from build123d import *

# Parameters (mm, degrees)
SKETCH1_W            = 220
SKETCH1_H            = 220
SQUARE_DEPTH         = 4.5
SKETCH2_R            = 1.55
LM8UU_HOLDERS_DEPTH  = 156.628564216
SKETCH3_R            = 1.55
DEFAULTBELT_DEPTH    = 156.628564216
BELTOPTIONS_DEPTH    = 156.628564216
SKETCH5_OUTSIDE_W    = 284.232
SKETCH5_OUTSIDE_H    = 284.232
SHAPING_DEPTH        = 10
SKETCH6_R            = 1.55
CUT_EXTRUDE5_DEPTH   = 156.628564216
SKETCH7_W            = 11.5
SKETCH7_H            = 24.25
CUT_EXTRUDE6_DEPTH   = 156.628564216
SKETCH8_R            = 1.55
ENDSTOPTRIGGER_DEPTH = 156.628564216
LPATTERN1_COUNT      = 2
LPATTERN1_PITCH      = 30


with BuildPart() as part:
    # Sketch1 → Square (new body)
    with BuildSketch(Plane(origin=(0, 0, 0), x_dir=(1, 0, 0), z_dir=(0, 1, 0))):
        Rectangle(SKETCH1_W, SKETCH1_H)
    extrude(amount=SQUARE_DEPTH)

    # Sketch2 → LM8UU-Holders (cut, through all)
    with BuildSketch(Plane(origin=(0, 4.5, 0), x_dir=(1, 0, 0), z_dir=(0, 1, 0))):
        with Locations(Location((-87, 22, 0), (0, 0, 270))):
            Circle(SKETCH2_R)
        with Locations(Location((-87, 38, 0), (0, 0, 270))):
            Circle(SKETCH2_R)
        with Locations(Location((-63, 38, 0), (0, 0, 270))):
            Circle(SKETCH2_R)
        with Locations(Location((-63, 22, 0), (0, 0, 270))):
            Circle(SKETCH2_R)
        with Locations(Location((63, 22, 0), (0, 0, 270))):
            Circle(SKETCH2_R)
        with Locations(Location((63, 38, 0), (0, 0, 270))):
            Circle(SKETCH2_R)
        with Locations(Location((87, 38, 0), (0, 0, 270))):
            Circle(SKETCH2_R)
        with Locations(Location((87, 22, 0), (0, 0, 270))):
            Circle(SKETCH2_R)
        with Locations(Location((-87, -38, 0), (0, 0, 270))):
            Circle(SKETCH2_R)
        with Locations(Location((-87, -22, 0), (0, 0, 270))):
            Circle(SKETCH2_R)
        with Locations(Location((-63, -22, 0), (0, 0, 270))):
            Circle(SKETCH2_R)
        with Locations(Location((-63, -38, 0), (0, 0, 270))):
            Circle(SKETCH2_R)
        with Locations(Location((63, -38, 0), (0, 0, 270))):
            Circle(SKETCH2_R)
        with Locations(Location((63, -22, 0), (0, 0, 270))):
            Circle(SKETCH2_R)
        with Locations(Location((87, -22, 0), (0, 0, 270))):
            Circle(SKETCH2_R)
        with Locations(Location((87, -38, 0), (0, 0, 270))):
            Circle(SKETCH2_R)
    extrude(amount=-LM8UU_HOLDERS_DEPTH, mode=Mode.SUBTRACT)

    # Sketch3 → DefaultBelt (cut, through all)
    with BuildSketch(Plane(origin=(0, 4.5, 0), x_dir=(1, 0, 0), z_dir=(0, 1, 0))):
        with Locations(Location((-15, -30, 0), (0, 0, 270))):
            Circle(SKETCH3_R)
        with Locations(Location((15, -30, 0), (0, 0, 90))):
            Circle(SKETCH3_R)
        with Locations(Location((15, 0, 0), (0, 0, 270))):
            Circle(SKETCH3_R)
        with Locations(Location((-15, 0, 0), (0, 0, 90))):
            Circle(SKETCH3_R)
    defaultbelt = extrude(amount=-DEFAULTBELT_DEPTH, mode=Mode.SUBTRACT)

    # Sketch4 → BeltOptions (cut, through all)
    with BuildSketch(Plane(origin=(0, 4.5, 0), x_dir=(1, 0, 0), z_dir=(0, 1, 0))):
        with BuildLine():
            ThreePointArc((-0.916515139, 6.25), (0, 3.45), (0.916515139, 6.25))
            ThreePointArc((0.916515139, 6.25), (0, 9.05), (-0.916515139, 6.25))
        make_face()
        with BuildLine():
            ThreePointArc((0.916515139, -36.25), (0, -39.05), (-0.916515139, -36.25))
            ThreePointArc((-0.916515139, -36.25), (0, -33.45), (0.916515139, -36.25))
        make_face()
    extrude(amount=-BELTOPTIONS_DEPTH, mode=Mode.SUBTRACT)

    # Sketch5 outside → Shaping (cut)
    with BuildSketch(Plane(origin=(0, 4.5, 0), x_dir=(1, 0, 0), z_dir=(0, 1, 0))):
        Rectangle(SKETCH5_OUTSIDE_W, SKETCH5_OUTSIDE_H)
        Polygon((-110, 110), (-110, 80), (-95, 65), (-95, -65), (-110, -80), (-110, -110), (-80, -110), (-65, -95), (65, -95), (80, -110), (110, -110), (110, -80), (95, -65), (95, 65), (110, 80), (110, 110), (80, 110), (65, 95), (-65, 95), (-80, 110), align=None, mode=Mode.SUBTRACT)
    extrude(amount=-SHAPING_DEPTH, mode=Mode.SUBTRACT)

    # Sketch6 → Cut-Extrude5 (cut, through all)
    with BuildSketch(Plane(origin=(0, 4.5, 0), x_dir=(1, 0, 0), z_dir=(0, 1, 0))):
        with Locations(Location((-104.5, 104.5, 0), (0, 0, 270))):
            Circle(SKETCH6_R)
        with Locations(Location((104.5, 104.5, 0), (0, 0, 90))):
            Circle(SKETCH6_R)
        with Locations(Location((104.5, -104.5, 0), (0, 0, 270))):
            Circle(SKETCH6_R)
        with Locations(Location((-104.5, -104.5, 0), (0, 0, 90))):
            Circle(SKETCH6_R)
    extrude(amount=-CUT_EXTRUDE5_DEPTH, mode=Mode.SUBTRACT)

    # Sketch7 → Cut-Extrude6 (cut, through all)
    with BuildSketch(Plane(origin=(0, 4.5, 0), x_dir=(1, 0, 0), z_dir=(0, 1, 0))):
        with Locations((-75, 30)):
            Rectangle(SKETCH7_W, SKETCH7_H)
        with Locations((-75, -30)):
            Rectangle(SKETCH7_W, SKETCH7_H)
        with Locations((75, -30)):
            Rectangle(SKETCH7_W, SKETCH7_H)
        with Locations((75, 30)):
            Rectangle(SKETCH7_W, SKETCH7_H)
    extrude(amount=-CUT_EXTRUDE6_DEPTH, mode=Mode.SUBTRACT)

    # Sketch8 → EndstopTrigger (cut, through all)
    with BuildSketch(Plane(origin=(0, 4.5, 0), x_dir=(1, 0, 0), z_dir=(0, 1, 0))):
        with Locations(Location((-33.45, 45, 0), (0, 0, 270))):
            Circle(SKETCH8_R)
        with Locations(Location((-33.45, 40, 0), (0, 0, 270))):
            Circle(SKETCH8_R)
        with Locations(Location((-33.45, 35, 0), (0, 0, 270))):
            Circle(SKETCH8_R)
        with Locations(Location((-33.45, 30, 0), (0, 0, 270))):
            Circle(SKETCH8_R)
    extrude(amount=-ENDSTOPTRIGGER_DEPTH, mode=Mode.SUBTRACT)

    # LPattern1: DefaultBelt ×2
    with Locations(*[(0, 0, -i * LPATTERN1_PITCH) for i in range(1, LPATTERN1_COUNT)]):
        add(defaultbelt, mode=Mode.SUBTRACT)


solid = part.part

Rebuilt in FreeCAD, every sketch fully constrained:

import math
import FreeCAD as App
import Part
import Sketcher


def add_polygon(sketch, points):
    """Adds a closed chain of lines whose ends are joined by coincident constraints."""
    first, n = sketch.GeometryCount, len(points)
    for a, b in zip(points, points[1:] + points[:1]):
        sketch.addGeometry(Part.LineSegment(App.Vector(*a, 0), App.Vector(*b, 0)), False)
    for i in range(n):
        sketch.addConstraint(Sketcher.Constraint("Coincident", first + i, 2, first + (i + 1) % n, 1))

doc = App.newDocument("Part")
body = doc.addObject("PartDesign::Body", "Body")

sketch1 = body.newObject("Sketcher::SketchObject", "Sketch")
sketch1.AttachmentSupport = (doc.getObject("XZ_Plane"), [""])
sketch1.MapMode = "FlatFace"
add_polygon(sketch1, [(-110, -110), (-110, 110), (110, 110), (110, -110)])
sketch1.addConstraint([
    Sketcher.Constraint("Vertical", 0),
    Sketcher.Constraint("Horizontal", 1),
    Sketcher.Constraint("Vertical", 2),
    Sketcher.Constraint("Horizontal", 3),
    Sketcher.Constraint("Symmetric", 0, 2, 2, 2, -1, 1),
    Sketcher.Constraint("Equal", 3, 0),
    Sketcher.Constraint("DistanceX", 1, 1, 1, 2, 220.0),
])
pad1 = body.newObject("PartDesign::Pad", "Pad")
pad1.Profile = sketch1
pad1.Length = 4.5
pad1.Reversed = True

sketch2 = body.newObject("Sketcher::SketchObject", "Sketch001")
sketch2.AttachmentSupport = (doc.getObject("XZ_Plane"), [""])
sketch2.MapMode = "FlatFace"
sketch2.AttachmentOffset = App.Placement(App.Vector(0, 0, -4.5), App.Rotation())
sketch2.addGeometry([
    Part.Circle(App.Vector(-87, -22, 0), App.Vector(0, 0, 1), 1.55),
    Part.Circle(App.Vector(-87, -38, 0), App.Vector(0, 0, 1), 1.55),
    Part.Circle(App.Vector(-63, -38, 0), App.Vector(0, 0, 1), 1.55),
    Part.Circle(App.Vector(-63, -22, 0), App.Vector(0, 0, 1), 1.55),
    Part.Circle(App.Vector(63, -22, 0), App.Vector(0, 0, 1), 1.55),
    Part.Circle(App.Vector(63, -38, 0), App.Vector(0, 0, 1), 1.55),
    Part.Circle(App.Vector(87, -38, 0), App.Vector(0, 0, 1), 1.55),
    Part.Circle(App.Vector(87, -22, 0), App.Vector(0, 0, 1), 1.55),
    Part.Circle(App.Vector(-87, 38, 0), App.Vector(0, 0, 1), 1.55),
    Part.Circle(App.Vector(-87, 22, 0), App.Vector(0, 0, 1), 1.55),
    Part.Circle(App.Vector(-63, 22, 0), App.Vector(0, 0, 1), 1.55),
    Part.Circle(App.Vector(-63, 38, 0), App.Vector(0, 0, 1), 1.55),
    Part.Circle(App.Vector(63, 38, 0), App.Vector(0, 0, 1), 1.55),
    Part.Circle(App.Vector(63, 22, 0), App.Vector(0, 0, 1), 1.55),
    Part.Circle(App.Vector(87, 22, 0), App.Vector(0, 0, 1), 1.55),
    Part.Circle(App.Vector(87, 38, 0), App.Vector(0, 0, 1), 1.55),
], False)
sketch2.addConstraint([
    Sketcher.Constraint("Equal", 0, 1),
    Sketcher.Constraint("Equal", 1, 2),
    Sketcher.Constraint("Equal", 2, 3),
    Sketcher.Constraint("Equal", 3, 4),
    Sketcher.Constraint("Equal", 4, 5),
    Sketcher.Constraint("Equal", 5, 6),
    Sketcher.Constraint("Equal", 6, 7),
    Sketcher.Constraint("Equal", 7, 8),
    Sketcher.Constraint("Equal", 8, 9),
    Sketcher.Constraint("Equal", 9, 10),
    Sketcher.Constraint("Equal", 10, 11),
    Sketcher.Constraint("Equal", 11, 12),
    Sketcher.Constraint("Equal", 12, 13),
    Sketcher.Constraint("Equal", 13, 14),
    Sketcher.Constraint("Equal", 14, 15),
    Sketcher.Constraint("Symmetric", 6, 3, 8, 3, -1, 1),
    Sketcher.Constraint("Symmetric", 7, 3, 9, 3, -1, 1),
    Sketcher.Constraint("Symmetric", 4, 3, 10, 3, -1, 1),
    Sketcher.Constraint("Symmetric", 5, 3, 11, 3, -1, 1),
    Sketcher.Constraint("Symmetric", 2, 3, 12, 3, -1, 1),
    Sketcher.Constraint("Symmetric", 3, 3, 13, 3, -1, 1),
    Sketcher.Constraint("Symmetric", 0, 3, 14, 3, -1, 1),
    Sketcher.Constraint("Symmetric", 1, 3, 15, 3, -1, 1),
    Sketcher.Constraint("Symmetric", 3, 3, 4, 3, -2),
    Sketcher.Constraint("Symmetric", 2, 3, 5, 3, -2),
    Sketcher.Constraint("Symmetric", 1, 3, 6, 3, -2),
    Sketcher.Constraint("Symmetric", 0, 3, 7, 3, -2),
    Sketcher.Constraint("Horizontal", 1, 3, 2, 3),
    Sketcher.Constraint("Horizontal", 0, 3, 3, 3),
    Sketcher.Constraint("Vertical", 0, 3, 1, 3),
    Sketcher.Constraint("Vertical", 2, 3, 3, 3),
    Sketcher.Constraint("Diameter", 0, 3.1),
    Sketcher.Constraint("DistanceX", 0, 3, -1, 1, 87.0),
    Sketcher.Constraint("DistanceY", 0, 3, -1, 1, 22.0),
    Sketcher.Constraint("DistanceY", 1, 3, -1, 1, 38.0),
    Sketcher.Constraint("DistanceX", 2, 3, -1, 1, 63.0),
])
pocket1 = body.newObject("PartDesign::Pocket", "Pocket")
pocket1.Profile = sketch2
pocket1.Type = "ThroughAll"
pocket1.Reversed = True

sketch3 = body.newObject("Sketcher::SketchObject", "Sketch002")
sketch3.AttachmentSupport = (doc.getObject("XZ_Plane"), [""])
sketch3.MapMode = "FlatFace"
sketch3.AttachmentOffset = App.Placement(App.Vector(0, 0, -4.5), App.Rotation())
sketch3.addGeometry([
    Part.Circle(App.Vector(-15, 30, 0), App.Vector(0, 0, 1), 1.55),
    Part.Circle(App.Vector(15, 30, 0), App.Vector(0, 0, 1), 1.55),
    Part.Circle(App.Vector(15, 0, 0), App.Vector(0, 0, 1), 1.55),
    Part.Circle(App.Vector(-15, 0, 0), App.Vector(0, 0, 1), 1.55),
], False)
sketch3.addConstraint([
    Sketcher.Constraint("Equal", 0, 1),
    Sketcher.Constraint("Equal", 1, 2),
    Sketcher.Constraint("Equal", 2, 3),
    Sketcher.Constraint("Symmetric", 2, 3, 3, 3, -1, 1),
    Sketcher.Constraint("Symmetric", 0, 3, 1, 3, -2),
    Sketcher.Constraint("PointOnObject", 2, 3, -1),
    Sketcher.Constraint("Vertical", 1, 3, 2, 3),
    Sketcher.Constraint("Diameter", 0, 3.1),
    Sketcher.Constraint("DistanceX", 0, 3, -1, 1, 15.0),
    Sketcher.Constraint("DistanceY", -1, 1, 0, 3, 30.0),
])
pocket2 = body.newObject("PartDesign::Pocket", "Pocket001")
pocket2.Profile = sketch3
pocket2.Type = "ThroughAll"
pocket2.Reversed = True

sketch4 = body.newObject("Sketcher::SketchObject", "Sketch003")
sketch4.AttachmentSupport = (doc.getObject("XZ_Plane"), [""])
sketch4.MapMode = "FlatFace"
sketch4.AttachmentOffset = App.Placement(App.Vector(0, 0, -4.5), App.Rotation())
sketch4.addGeometry([
    Part.ArcOfCircle(Part.Circle(App.Vector(0, -5, 0), App.Vector(0, 0, 1), 1.55), math.radians(-53.750679), math.radians(233.750679)),
    Part.ArcOfCircle(Part.Circle(App.Vector(0, -7.5, 0), App.Vector(0, 0, 1), 1.55), math.radians(126.249321), math.radians(413.750679)),
    Part.ArcOfCircle(Part.Circle(App.Vector(0, 37.5, 0), App.Vector(0, 0, 1), 1.55), math.radians(-53.750679), math.radians(233.750679)),
    Part.ArcOfCircle(Part.Circle(App.Vector(0, 35, 0), App.Vector(0, 0, 1), 1.55), math.radians(126.249321), math.radians(413.750679)),
], False)
sketch4.addConstraint([
    Sketcher.Constraint("Coincident", 0, 1, 1, 2),
    Sketcher.Constraint("Coincident", 1, 1, 0, 2),
    Sketcher.Constraint("Coincident", 2, 1, 3, 2),
    Sketcher.Constraint("Coincident", 3, 1, 2, 2),
    Sketcher.Constraint("Equal", 0, 1),
    Sketcher.Constraint("Equal", 1, 2),
    Sketcher.Constraint("Equal", 2, 3),
    Sketcher.Constraint("Symmetric", 0, 1, 1, 1, -2),
    Sketcher.Constraint("Symmetric", 2, 1, 3, 1, -2),
    Sketcher.Constraint("Vertical", 0, 1, 2, 1),
    Sketcher.Constraint("Radius", 0, 1.55),
    Sketcher.Constraint("DistanceY", 0, 3, -1, 1, 5.0),
    Sketcher.Constraint("DistanceY", -1, 1, 3, 3, 35.0),
    Sketcher.Constraint("DistanceY", 1, 3, 2, 3, 45.0),
])
pocket3 = body.newObject("PartDesign::Pocket", "Pocket002")
pocket3.Profile = sketch4
pocket3.Type = "ThroughAll"
pocket3.Reversed = True

sketch5 = body.newObject("Sketcher::SketchObject", "Sketch004")
sketch5.AttachmentSupport = (doc.getObject("XZ_Plane"), [""])
sketch5.MapMode = "FlatFace"
sketch5.AttachmentOffset = App.Placement(App.Vector(0, 0, -4.5), App.Rotation())
add_polygon(sketch5, [(-142.116, -142.116), (-142.116, 142.116), (142.116, 142.116), (142.116, -142.116)])
add_polygon(sketch5, [(-110, -80), (-110, -110), (-80, -110), (-65, -95), (65, -95), (80, -110), (110, -110), (110, -80), (95, -65), (95, 65), (110, 80), (110, 110), (80, 110), (65, 95), (-65, 95), (-80, 110), (-110, 110), (-110, 80), (-95, 65), (-95, -65)])
sketch5.addConstraint([
    Sketcher.Constraint("Vertical", 0),
    Sketcher.Constraint("Horizontal", 1),
    Sketcher.Constraint("Vertical", 2),
    Sketcher.Constraint("Horizontal", 3),
    Sketcher.Constraint("Vertical", 4),
    Sketcher.Constraint("Horizontal", 5),
    Sketcher.Constraint("Horizontal", 7),
    Sketcher.Constraint("Horizontal", 9),
    Sketcher.Constraint("Vertical", 10),
    Sketcher.Constraint("Vertical", 12),
    Sketcher.Constraint("Vertical", 14),
    Sketcher.Constraint("Horizontal", 15),
    Sketcher.Constraint("Horizontal", 17),
    Sketcher.Constraint("Horizontal", 19),
    Sketcher.Constraint("Vertical", 20),
    Sketcher.Constraint("Vertical", 22),
    Sketcher.Constraint("Symmetric", 0, 2, 2, 2, -1, 1),
    Sketcher.Constraint("Symmetric", 4, 2, 14, 2, -1, 1),
    Sketcher.Constraint("Symmetric", 6, 2, 16, 2, -1, 1),
    Sketcher.Constraint("Symmetric", 8, 2, 18, 2, -1, 1),
    Sketcher.Constraint("Symmetric", 10, 2, 20, 2, -1, 1),
    Sketcher.Constraint("Symmetric", 11, 2, 21, 2, -1, 1),
    Sketcher.Constraint("Symmetric", 5, 2, 8, 2, -2),
    Sketcher.Constraint("Symmetric", 13, 2, 20, 2, -2),
    Sketcher.Constraint("Perpendicular", 6, 8),
    Sketcher.Constraint("Parallel", 8, 11),
    Sketcher.Constraint("Perpendicular", 11, 13),
    Sketcher.Constraint("Parallel", 13, 16),
    Sketcher.Constraint("Perpendicular", 16, 18),
    Sketcher.Constraint("Perpendicular", 21, 23),
    Sketcher.Constraint("Horizontal", 12, 2, 21, 2),
    Sketcher.Constraint("Horizontal", 11, 2, 22, 2),
    Sketcher.Constraint("Equal", 3, 0),
    Sketcher.Constraint("Equal", 19, 4),
    Sketcher.Constraint("Equal", 17, 12),
    Sketcher.Constraint("Equal", 8, 11),
    Sketcher.Constraint("DistanceX", 5, 1, 5, 2, 30.0),
    Sketcher.Constraint("DistanceX", 7, 1, 7, 2, 130.0),
    Sketcher.Constraint("DistanceX", 4, 2, -1, 1, 110.0),
    Sketcher.Constraint("DistanceX", 1, 1, 1, 2, 284.232),
])
pocket4 = body.newObject("PartDesign::Pocket", "Pocket003")
pocket4.Profile = sketch5
pocket4.Length = 10
pocket4.Reversed = True

sketch6 = body.newObject("Sketcher::SketchObject", "Sketch005")
sketch6.AttachmentSupport = (doc.getObject("XZ_Plane"), [""])
sketch6.MapMode = "FlatFace"
sketch6.AttachmentOffset = App.Placement(App.Vector(0, 0, -4.5), App.Rotation())
sketch6.addGeometry([
    Part.Circle(App.Vector(-104.5, -104.5, 0), App.Vector(0, 0, 1), 1.55),
    Part.Circle(App.Vector(104.5, -104.5, 0), App.Vector(0, 0, 1), 1.55),
    Part.Circle(App.Vector(104.5, 104.5, 0), App.Vector(0, 0, 1), 1.55),
    Part.Circle(App.Vector(-104.5, 104.5, 0), App.Vector(0, 0, 1), 1.55),
], False)
sketch6.addConstraint([
    Sketcher.Constraint("Equal", 0, 1),
    Sketcher.Constraint("Equal", 1, 2),
    Sketcher.Constraint("Equal", 2, 3),
    Sketcher.Constraint("Symmetric", 0, 3, 2, 3, -1, 1),
    Sketcher.Constraint("Symmetric", 1, 3, 3, 3, -1, 1),
    Sketcher.Constraint("Symmetric", 0, 3, 1, 3, -2),
    Sketcher.Constraint("Diameter", 0, 3.1),
    Sketcher.Constraint("DistanceX", 0, 3, 1, 3, 209.0),
    Sketcher.Constraint("DistanceY", 1, 3, 2, 3, 209.0),
])
pocket5 = body.newObject("PartDesign::Pocket", "Pocket004")
pocket5.Profile = sketch6
pocket5.Type = "ThroughAll"
pocket5.Reversed = True

sketch7 = body.newObject("Sketcher::SketchObject", "Sketch006")
sketch7.AttachmentSupport = (doc.getObject("XZ_Plane"), [""])
sketch7.MapMode = "FlatFace"
sketch7.AttachmentOffset = App.Placement(App.Vector(0, 0, -4.5), App.Rotation())
add_polygon(sketch7, [(-80.75, -42.125), (-80.75, -17.875), (-69.25, -17.875), (-69.25, -42.125)])
add_polygon(sketch7, [(-80.75, 17.875), (-80.75, 42.125), (-69.25, 42.125), (-69.25, 17.875)])
add_polygon(sketch7, [(69.25, 17.875), (69.25, 42.125), (80.75, 42.125), (80.75, 17.875)])
add_polygon(sketch7, [(69.25, -42.125), (69.25, -17.875), (80.75, -17.875), (80.75, -42.125)])
sketch7.addConstraint([
    Sketcher.Constraint("Vertical", 0),
    Sketcher.Constraint("Horizontal", 1),
    Sketcher.Constraint("Vertical", 2),
    Sketcher.Constraint("Horizontal", 3),
    Sketcher.Constraint("Vertical", 4),
    Sketcher.Constraint("Horizontal", 5),
    Sketcher.Constraint("Vertical", 6),
    Sketcher.Constraint("Horizontal", 7),
    Sketcher.Constraint("Vertical", 8),
    Sketcher.Constraint("Horizontal", 9),
    Sketcher.Constraint("Vertical", 10),
    Sketcher.Constraint("Horizontal", 11),
    Sketcher.Constraint("Vertical", 12),
    Sketcher.Constraint("Horizontal", 13),
    Sketcher.Constraint("Vertical", 14),
    Sketcher.Constraint("Horizontal", 15),
    Sketcher.Constraint("Symmetric", 2, 2, 8, 2, -1, 1),
    Sketcher.Constraint("Symmetric", 0, 2, 10, 2, -1, 1),
    Sketcher.Constraint("Symmetric", 6, 2, 12, 2, -1, 1),
    Sketcher.Constraint("Symmetric", 4, 2, 14, 2, -1, 1),
    Sketcher.Constraint("Symmetric", 5, 2, 8, 2, -2),
    Sketcher.Constraint("Symmetric", 7, 2, 10, 2, -2),
    Sketcher.Constraint("DistanceX", 1, 1, 1, 2, 11.5),
    Sketcher.Constraint("DistanceY", 0, 2, 4, 2, 60.0),
    Sketcher.Constraint("DistanceX", 4, 2, 8, 2, 150.0),
    Sketcher.Constraint("DistanceY", 0, 1, 0, 2, 24.25),
])
pocket6 = body.newObject("PartDesign::Pocket", "Pocket005")
pocket6.Profile = sketch7
pocket6.Type = "ThroughAll"
pocket6.Reversed = True

sketch8 = body.newObject("Sketcher::SketchObject", "Sketch007")
sketch8.AttachmentSupport = (doc.getObject("XZ_Plane"), [""])
sketch8.MapMode = "FlatFace"
sketch8.AttachmentOffset = App.Placement(App.Vector(0, 0, -4.5), App.Rotation())
sketch8.addGeometry([
    Part.Circle(App.Vector(-33.45, -45, 0), App.Vector(0, 0, 1), 1.55),
    Part.Circle(App.Vector(-33.45, -40, 0), App.Vector(0, 0, 1), 1.55),
    Part.Circle(App.Vector(-33.45, -35, 0), App.Vector(0, 0, 1), 1.55),
    Part.Circle(App.Vector(-33.45, -30, 0), App.Vector(0, 0, 1), 1.55),
], False)
sketch8.addConstraint([
    Sketcher.Constraint("Equal", 0, 1),
    Sketcher.Constraint("Equal", 1, 2),
    Sketcher.Constraint("Equal", 2, 3),
    Sketcher.Constraint("Vertical", 0, 3, 1, 3),
    Sketcher.Constraint("Vertical", 1, 3, 2, 3),
    Sketcher.Constraint("Vertical", 2, 3, 3, 3),
    Sketcher.Constraint("Diameter", 0, 3.1),
    Sketcher.Constraint("DistanceY", 0, 3, -1, 1, 45.0),
    Sketcher.Constraint("DistanceY", 1, 3, -1, 1, 40.0),
    Sketcher.Constraint("DistanceY", 2, 3, -1, 1, 35.0),
    Sketcher.Constraint("DistanceY", 3, 3, -1, 1, 30.0),
    Sketcher.Constraint("DistanceX", 0, 3, -1, 1, 33.45),
])
pocket7 = body.newObject("PartDesign::Pocket", "Pocket006")
pocket7.Profile = sketch8
pocket7.Type = "ThroughAll"
pocket7.Reversed = True
doc.recompute()

linearpattern = body.newObject("PartDesign::LinearPattern", "LinearPattern")
linearpattern.Originals = [pocket2]
linearpattern.Direction = (doc.getObject("Z_Axis"), [""])
linearpattern.Mode = "offset"
linearpattern.Offset = 30
linearpattern.Occurrences = 2
linearpattern.Reversed = True
body.Tip = linearpattern

doc.recompute()
